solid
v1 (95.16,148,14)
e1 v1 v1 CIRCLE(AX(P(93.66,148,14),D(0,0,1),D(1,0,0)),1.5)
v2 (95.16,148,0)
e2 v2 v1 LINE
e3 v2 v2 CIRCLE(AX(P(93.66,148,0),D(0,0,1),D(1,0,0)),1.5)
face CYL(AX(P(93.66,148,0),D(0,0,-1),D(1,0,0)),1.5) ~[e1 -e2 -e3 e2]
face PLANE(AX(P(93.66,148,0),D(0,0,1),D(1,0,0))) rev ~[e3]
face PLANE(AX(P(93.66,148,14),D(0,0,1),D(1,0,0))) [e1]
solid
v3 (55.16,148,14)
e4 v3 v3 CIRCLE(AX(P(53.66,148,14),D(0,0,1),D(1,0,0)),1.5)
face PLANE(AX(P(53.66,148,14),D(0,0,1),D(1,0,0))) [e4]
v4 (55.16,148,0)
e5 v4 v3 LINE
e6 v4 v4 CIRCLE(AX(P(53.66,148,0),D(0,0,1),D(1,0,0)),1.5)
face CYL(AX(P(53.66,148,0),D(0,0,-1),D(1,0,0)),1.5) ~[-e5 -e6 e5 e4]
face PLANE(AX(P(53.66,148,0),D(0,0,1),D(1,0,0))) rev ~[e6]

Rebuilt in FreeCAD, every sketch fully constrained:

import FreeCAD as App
import Part
import Sketcher

doc = App.newDocument("Part")
body = doc.addObject("PartDesign::Body", "Body")

# Sketch on XY plane
sketch1 = body.newObject("Sketcher::SketchObject", "Sketch")
sketch1.AttachmentSupport = (doc.getObject("XY_Plane"), [""])
sketch1.MapMode = "FlatFace"
sketch1.addGeometry(Part.Circle(App.Vector(53.66, 148, 0), App.Vector(0, 0, 1), 1.5), False)
sketch1.addConstraint([
    Sketcher.Constraint("Diameter", 0, 3.0),
    Sketcher.Constraint("DistanceY", -1, 1, 0, 3, 148.0),
    Sketcher.Constraint("DistanceX", -1, 1, 0, 3, 53.66),
])
pad1 = body.newObject("PartDesign::Pad", "Pad")
pad1.Profile = sketch1
pad1.Length = 14
body2 = doc.addObject("PartDesign::Body", "Body001")
body2.AllowCompound = True

# Sketch on XY plane
sketch2 = body2.newObject("Sketcher::SketchObject", "Sketch001")
sketch2.AttachmentSupport = (doc.getObject("XY_Plane001"), [""])
sketch2.MapMode = "FlatFace"
sketch2.addGeometry(Part.Circle(App.Vector(93.66, 148, 0), App.Vector(0, 0, 1), 1.5), False)
sketch2.addConstraint([
    Sketcher.Constraint("Diameter", 0, 3.0),
    Sketcher.Constraint("DistanceY", -1, 1, 0, 3, 148.0),
    Sketcher.Constraint("DistanceX", -1, 1, 0, 3, 93.66),
])
pad2 = body2.newObject("PartDesign::Pad", "Pad001")
pad2.Profile = sketch2
pad2.Length = 14
doc.recompute()

boolean = body2.newObject("PartDesign::Boolean", "Boolean")
boolean.Type = "Fuse"
boolean.addObjects([body])

doc.recompute()
